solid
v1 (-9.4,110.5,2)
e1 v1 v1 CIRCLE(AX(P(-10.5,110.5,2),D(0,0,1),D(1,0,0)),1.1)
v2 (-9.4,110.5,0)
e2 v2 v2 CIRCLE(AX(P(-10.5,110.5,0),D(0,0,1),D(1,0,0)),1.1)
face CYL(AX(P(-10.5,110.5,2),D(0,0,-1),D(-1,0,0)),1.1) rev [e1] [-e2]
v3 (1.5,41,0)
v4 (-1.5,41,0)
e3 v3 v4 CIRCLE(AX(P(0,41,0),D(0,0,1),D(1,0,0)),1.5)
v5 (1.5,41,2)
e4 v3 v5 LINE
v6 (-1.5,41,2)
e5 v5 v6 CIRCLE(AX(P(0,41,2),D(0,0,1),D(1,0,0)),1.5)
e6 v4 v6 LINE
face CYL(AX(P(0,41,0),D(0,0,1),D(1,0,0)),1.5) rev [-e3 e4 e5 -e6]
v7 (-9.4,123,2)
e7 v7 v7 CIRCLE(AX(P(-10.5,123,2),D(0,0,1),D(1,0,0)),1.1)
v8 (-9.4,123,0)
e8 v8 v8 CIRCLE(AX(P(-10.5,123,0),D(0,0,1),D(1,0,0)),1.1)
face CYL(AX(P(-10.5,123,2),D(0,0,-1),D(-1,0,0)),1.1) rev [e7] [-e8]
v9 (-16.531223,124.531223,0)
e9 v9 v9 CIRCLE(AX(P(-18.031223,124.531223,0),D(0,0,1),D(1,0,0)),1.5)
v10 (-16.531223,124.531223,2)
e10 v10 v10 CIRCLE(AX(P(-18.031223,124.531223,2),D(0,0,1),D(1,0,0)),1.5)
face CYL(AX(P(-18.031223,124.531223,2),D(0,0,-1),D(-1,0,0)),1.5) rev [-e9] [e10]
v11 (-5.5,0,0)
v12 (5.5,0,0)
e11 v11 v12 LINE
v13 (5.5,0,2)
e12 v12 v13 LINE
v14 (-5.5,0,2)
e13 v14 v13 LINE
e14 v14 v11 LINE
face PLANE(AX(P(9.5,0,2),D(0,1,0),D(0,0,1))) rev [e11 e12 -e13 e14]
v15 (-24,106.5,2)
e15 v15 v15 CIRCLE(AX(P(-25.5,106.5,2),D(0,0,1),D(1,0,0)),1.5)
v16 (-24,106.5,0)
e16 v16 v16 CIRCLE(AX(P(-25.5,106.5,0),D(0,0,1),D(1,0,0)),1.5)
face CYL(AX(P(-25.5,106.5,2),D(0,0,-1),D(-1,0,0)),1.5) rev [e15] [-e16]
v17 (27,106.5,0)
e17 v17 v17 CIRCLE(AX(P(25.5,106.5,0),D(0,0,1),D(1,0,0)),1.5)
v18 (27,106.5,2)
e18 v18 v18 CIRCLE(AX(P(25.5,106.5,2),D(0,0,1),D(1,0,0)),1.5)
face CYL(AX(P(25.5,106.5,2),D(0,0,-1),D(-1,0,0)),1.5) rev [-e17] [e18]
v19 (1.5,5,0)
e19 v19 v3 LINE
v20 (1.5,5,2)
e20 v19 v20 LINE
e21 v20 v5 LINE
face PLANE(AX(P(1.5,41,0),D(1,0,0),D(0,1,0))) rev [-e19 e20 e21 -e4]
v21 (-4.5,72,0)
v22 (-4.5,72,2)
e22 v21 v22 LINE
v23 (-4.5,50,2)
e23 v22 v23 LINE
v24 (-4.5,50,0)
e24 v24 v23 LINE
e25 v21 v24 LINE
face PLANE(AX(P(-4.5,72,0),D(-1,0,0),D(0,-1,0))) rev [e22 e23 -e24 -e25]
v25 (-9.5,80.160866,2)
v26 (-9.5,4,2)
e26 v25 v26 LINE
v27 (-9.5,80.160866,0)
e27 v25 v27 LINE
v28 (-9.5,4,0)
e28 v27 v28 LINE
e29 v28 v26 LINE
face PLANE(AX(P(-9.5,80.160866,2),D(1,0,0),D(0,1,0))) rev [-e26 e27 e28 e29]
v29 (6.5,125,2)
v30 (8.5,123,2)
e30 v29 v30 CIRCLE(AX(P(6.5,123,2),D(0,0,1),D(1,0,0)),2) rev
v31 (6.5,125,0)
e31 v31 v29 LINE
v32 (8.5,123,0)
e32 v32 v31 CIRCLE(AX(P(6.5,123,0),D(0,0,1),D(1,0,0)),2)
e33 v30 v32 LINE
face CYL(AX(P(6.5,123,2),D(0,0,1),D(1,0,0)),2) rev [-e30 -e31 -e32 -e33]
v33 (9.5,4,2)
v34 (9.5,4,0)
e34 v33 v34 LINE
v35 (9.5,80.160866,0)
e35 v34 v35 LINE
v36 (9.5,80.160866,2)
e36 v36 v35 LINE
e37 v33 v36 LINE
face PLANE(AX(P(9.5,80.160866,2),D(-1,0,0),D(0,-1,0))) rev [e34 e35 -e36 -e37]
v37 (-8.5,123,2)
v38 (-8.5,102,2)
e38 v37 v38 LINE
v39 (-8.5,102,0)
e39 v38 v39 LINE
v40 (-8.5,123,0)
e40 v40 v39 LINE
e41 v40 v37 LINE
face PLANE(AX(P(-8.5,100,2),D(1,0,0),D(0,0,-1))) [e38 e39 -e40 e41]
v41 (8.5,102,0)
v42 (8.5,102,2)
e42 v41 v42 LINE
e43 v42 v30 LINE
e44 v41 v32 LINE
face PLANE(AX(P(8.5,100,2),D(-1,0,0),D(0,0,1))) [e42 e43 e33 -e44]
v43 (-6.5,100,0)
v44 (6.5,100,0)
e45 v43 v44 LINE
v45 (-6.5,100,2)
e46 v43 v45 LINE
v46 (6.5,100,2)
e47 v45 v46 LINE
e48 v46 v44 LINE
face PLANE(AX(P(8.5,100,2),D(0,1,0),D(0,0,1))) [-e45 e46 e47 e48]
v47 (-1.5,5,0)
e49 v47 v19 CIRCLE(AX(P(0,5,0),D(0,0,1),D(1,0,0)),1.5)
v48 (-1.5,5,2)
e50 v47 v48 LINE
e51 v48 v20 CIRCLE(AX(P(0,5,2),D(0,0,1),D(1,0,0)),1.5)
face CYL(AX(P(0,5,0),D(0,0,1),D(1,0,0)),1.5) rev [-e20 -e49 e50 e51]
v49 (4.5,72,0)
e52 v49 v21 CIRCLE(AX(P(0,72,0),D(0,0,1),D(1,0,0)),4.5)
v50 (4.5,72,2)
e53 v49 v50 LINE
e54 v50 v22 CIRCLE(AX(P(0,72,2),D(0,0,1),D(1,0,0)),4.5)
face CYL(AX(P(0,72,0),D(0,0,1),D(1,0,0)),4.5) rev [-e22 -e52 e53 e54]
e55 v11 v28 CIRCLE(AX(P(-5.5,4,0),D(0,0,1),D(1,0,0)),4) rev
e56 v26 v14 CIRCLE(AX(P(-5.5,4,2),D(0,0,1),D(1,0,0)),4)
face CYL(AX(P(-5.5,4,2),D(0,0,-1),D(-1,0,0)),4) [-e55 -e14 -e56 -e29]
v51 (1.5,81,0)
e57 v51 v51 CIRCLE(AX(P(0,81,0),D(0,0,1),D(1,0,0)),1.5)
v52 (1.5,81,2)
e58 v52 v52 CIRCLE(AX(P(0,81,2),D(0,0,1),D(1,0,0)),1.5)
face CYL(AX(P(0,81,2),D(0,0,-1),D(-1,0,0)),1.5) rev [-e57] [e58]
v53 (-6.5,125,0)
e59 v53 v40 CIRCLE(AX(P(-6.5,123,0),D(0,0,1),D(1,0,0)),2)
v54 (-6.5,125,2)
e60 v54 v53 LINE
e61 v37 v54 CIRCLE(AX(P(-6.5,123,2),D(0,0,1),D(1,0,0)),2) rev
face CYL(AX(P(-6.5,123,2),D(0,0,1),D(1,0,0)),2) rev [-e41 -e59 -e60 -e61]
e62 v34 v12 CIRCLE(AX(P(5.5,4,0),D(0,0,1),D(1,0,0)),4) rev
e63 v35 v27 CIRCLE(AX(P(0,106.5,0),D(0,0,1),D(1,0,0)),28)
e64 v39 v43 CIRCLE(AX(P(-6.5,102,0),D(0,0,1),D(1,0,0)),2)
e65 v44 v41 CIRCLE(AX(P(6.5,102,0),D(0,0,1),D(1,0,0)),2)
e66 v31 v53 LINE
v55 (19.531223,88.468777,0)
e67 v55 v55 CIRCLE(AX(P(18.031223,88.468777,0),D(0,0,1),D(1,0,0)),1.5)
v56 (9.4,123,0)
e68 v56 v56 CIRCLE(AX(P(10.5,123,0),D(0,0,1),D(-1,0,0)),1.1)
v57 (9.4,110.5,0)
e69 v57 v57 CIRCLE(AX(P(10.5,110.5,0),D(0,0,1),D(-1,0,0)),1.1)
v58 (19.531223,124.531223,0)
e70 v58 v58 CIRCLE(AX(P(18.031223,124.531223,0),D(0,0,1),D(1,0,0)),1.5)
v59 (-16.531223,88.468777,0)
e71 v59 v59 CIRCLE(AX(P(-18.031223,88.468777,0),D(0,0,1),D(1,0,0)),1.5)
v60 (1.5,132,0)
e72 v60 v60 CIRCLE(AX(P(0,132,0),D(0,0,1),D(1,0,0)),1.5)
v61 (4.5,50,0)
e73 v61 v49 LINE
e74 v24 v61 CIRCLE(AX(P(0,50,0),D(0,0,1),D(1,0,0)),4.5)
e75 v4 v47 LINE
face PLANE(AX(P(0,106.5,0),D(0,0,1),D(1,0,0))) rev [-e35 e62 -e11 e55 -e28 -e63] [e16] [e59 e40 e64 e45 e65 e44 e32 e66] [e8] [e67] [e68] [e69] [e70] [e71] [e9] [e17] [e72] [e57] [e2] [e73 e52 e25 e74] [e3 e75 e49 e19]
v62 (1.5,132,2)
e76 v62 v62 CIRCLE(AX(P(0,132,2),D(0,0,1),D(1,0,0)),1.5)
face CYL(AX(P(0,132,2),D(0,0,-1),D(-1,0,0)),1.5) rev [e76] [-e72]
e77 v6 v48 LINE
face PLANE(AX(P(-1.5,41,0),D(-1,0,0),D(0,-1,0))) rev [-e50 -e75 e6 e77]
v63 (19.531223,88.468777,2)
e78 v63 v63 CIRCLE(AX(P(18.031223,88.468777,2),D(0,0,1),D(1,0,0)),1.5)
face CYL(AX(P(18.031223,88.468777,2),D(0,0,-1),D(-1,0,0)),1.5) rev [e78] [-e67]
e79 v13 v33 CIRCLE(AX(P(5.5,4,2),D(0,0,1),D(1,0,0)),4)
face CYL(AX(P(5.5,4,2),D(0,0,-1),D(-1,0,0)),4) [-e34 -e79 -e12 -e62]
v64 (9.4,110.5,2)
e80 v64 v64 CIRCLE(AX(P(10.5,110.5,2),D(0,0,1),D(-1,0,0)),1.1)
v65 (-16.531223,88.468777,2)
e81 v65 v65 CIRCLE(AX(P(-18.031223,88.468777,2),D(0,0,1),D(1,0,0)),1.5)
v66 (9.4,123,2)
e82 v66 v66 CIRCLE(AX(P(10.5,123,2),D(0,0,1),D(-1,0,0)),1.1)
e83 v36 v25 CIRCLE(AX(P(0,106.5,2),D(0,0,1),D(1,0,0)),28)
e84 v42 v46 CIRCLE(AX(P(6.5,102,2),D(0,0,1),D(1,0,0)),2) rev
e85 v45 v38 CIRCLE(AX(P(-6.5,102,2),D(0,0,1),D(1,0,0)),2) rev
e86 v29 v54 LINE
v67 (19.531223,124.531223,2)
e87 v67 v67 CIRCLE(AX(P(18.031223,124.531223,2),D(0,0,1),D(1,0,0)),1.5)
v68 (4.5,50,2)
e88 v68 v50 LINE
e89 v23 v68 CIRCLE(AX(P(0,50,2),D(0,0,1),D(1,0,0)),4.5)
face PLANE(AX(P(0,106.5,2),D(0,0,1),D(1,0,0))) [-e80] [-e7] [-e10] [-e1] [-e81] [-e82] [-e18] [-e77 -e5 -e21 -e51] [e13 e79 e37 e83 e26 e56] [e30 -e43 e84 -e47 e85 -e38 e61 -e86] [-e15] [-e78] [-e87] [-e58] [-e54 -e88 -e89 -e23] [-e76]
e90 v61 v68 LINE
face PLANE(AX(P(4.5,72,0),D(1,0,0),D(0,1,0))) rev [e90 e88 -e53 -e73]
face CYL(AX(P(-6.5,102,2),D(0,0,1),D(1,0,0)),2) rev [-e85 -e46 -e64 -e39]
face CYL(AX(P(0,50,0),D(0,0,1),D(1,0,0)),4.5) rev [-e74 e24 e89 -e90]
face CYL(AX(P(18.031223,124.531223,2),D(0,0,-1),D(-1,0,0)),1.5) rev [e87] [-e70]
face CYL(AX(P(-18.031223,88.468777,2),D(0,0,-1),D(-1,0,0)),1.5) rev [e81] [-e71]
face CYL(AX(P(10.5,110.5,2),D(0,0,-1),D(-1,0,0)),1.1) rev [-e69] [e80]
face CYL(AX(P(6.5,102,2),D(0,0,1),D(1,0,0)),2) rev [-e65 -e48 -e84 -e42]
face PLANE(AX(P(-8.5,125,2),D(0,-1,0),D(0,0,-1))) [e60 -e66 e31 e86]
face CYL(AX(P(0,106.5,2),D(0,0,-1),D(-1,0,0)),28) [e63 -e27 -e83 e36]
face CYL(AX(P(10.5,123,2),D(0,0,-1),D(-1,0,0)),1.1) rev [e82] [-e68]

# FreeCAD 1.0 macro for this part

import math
import FreeCAD as App
import Part
import Sketcher
Q = App.Units.Quantity


def edges_at(feature, points):
    """Names of the edges that pass closest to the given points."""
    edges = feature.Shape.Edges
    near = lambda p: min(range(len(edges)), key=lambda i: edges[i].distToShape(Part.Vertex(*p))[0])
    return sorted({f"Edge{near(p) + 1}" for p in points})


def add_polygon(sketch, points):
    """Adds a closed chain of lines whose ends are joined by coincident constraints."""
    first, n = sketch.GeometryCount, len(points)
    for a, b in zip(points, points[1:] + points[:1]):
        sketch.addGeometry(Part.LineSegment(App.Vector(*a, 0), App.Vector(*b, 0)), False)
    for i in range(n):
        sketch.addConstraint(Sketcher.Constraint("Coincident", first + i, 2, first + (i + 1) % n, 1))

doc = App.newDocument("Part")
body = doc.addObject("PartDesign::Body", "Body")

# Sketch on XY plane
sketch1 = body.newObject("Sketcher::SketchObject", "Sketch")
sketch1.AttachmentSupport = (doc.getObject("XY_Plane"), [""])
sketch1.MapMode = "FlatFace"
sketch1.addGeometry(Part.LineSegment(App.Vector(-9.5, 0, 0), App.Vector(9.5, 0, 0)), False)  # 0
sketch1.addGeometry(Part.LineSegment(App.Vector(9.5, 0, 0), App.Vector(9.5, 80.160866, 0)), False)  # 1
sketch1.addGeometry(Part.ArcOfCircle(Part.Circle(App.Vector(0, 106.5, 0), App.Vector(0, 0, 1), 28), math.radians(-70.166638), math.radians(250.166638)), False)  # 2
sketch1.addGeometry(Part.LineSegment(App.Vector(-9.5, 80.160866, 0), App.Vector(-9.5, 0, 0)), False)  # 3
sketch1.addGeometry(Part.Circle(App.Vector(18.031223, 88.468777, 0), App.Vector(0, 0, 1), 1.5), False)  # 4
sketch1.addGeometry(Part.Circle(App.Vector(0, 81, 0), App.Vector(0, 0, 1), 1.5), False)  # 5
sketch1.addGeometry(Part.Circle(App.Vector(-18.031223, 88.468777, 0), App.Vector(0, 0, 1), 1.5), False)  # 6
sketch1.addGeometry(Part.Circle(App.Vector(25.5, 106.5, 0), App.Vector(0, 0, 1), 1.5), False)  # 7
sketch1.addGeometry(Part.Circle(App.Vector(10.5, 110.5, 0), App.Vector(0, 0, 1), 1.1), False)  # 8
sketch1.addGeometry(Part.Circle(App.Vector(18.031223, 124.531223, 0), App.Vector(0, 0, 1), 1.5), False)  # 9
sketch1.addGeometry(Part.Circle(App.Vector(10.5, 123, 0), App.Vector(0, 0, 1), 1.1), False)  # 10
add_polygon(sketch1, [(-8.5, 100), (-8.5, 125), (8.5, 125), (8.5, 100)])  # lines 11-14
sketch1.addGeometry(Part.Circle(App.Vector(-10.5, 110.5, 0), App.Vector(0, 0, 1), 1.1), False)  # 15
sketch1.addGeometry(Part.Circle(App.Vector(-25.5, 106.5, 0), App.Vector(0, 0, 1), 1.5), False)  # 16
sketch1.addGeometry(Part.Circle(App.Vector(-10.5, 123, 0), App.Vector(0, 0, 1), 1.1), False)  # 17
sketch1.addGeometry(Part.Circle(App.Vector(0, 132, 0), App.Vector(0, 0, 1), 1.5), False)  # 18
sketch1.addGeometry(Part.Circle(App.Vector(-18.031223, 124.531223, 0), App.Vector(0, 0, 1), 1.5), False)  # 19
sketch1.addConstraint(Sketcher.Constraint("Coincident", 0, 2, 1, 1))
sketch1.addConstraint(Sketcher.Constraint("Coincident", 1, 2, 2, 1))
sketch1.addConstraint(Sketcher.Constraint("Coincident", 2, 2, 3, 1))
sketch1.addConstraint(Sketcher.Constraint("Coincident", 3, 2, 0, 1))
sketch1.addConstraint(Sketcher.Constraint("Horizontal", 0))
sketch1.addConstraint(Sketcher.Constraint("Vertical", 1))
sketch1.addConstraint(Sketcher.Constraint("Vertical", 3))
sketch1.addConstraint(Sketcher.Constraint("Vertical", 11))
sketch1.addConstraint(Sketcher.Constraint("Horizontal", 12))
sketch1.addConstraint(Sketcher.Constraint("Vertical", 13))
sketch1.addConstraint(Sketcher.Constraint("Horizontal", 14))
sketch1.addConstraint(Sketcher.Constraint("Equal", 4, 5))
sketch1.addConstraint(Sketcher.Constraint("Equal", 5, 6))
sketch1.addConstraint(Sketcher.Constraint("Equal", 6, 7))
sketch1.addConstraint(Sketcher.Constraint("Equal", 7, 9))
sketch1.addConstraint(Sketcher.Constraint("Equal", 8, 10))
sketch1.addConstraint(Sketcher.Constraint("Equal", 10, 15))
sketch1.addConstraint(Sketcher.Constraint("Equal", 9, 16))
sketch1.addConstraint(Sketcher.Constraint("Equal", 15, 17))
sketch1.addConstraint(Sketcher.Constraint("Equal", 16, 18))
sketch1.addConstraint(Sketcher.Constraint("Equal", 18, 19))
sketch1.addConstraint(Sketcher.Constraint("Symmetric", 0, 2, 3, 2, -1, 1))
sketch1.addConstraint(Sketcher.Constraint("Symmetric", 4, 3, 6, 3, -2))
sketch1.addConstraint(Sketcher.Constraint("Symmetric", 8, 3, 15, 3, -2))
sketch1.addConstraint(Sketcher.Constraint("Symmetric", 7, 3, 16, 3, -2))
sketch1.addConstraint(Sketcher.Constraint("Symmetric", 10, 3, 17, 3, -2))
sketch1.addConstraint(Sketcher.Constraint("Symmetric", 9, 3, 19, 3, -2))
sketch1.addConstraint(Sketcher.Constraint("PointOnObject", 2, 3, -2))
sketch1.addConstraint(Sketcher.Constraint("PointOnObject", 5, 3, -2))
sketch1.addConstraint(Sketcher.Constraint("PointOnObject", 18, 3, -2))
sketch1.addConstraint(Sketcher.Constraint("Horizontal", 2, 3, 7, 3))
sketch1.addConstraint(Sketcher.Constraint("Vertical", 4, 3, 9, 3))
sketch1.addConstraint(Sketcher.Constraint("Vertical", 8, 3, 10, 3))
sketch1.addConstraint(Sketcher.Constraint("Diameter", 4, Q("3 mm")))
sketch1.addConstraint(Sketcher.Constraint("Radius", 2, Q("28 mm")))
sketch1.addConstraint(Sketcher.Constraint("Diameter", 8, Q("2.2 mm")))
sketch1.addConstraint(Sketcher.Constraint("DistanceX", 0, 1, 0, 2, Q("19 mm")))
sketch1.addConstraint(Sketcher.Constraint("DistanceX", 12, 1, 12, 2, Q("17 mm")))
sketch1.addConstraint(Sketcher.Constraint("DistanceY", 11, 1, 11, 2, Q("25 mm")))
sketch1.addConstraint(Sketcher.Constraint("DistanceY", -1, 1, 5, 3, Q("81 mm")))
sketch1.addConstraint(Sketcher.Constraint("DistanceY", -1, 1, 10, 3, Q("123 mm")))
sketch1.addConstraint(Sketcher.Constraint("DistanceY", -1, 1, 18, 3, Q("132 mm")))
sketch1.addConstraint(Sketcher.Constraint("DistanceY", -1, 1, 11, 2, Q("125 mm")))
sketch1.addConstraint(Sketcher.Constraint("DistanceY", 2, 3, 8, 3, Q("4 mm")))
sketch1.addConstraint(Sketcher.Constraint("DistanceX", 8, 3, 7, 3, Q("15 mm")))
sketch1.addConstraint(Sketcher.Constraint("DistanceX", 15, 3, 8, 3, Q("21 mm")))
sketch1.addConstraint(Sketcher.Constraint("DistanceX", 17, 3, 11, 2, Q("2 mm")))
sketch1.addConstraint(Sketcher.Constraint("DistanceY", -1, 1, 2, 3, Q("106.5 mm")))
sketch1.addConstraint(Sketcher.Constraint("DistanceY", 1, 2, 4, 3, Q("8.307911 mm")))
sketch1.addConstraint(Sketcher.Constraint("DistanceX", -1, 1, 4, 3, Q("18.031223 mm")))
sketch1.addConstraint(Sketcher.Constraint("DistanceY", -1, 1, 9, 3, Q("124.531223 mm")))
pad1 = body.newObject("PartDesign::Pad", "Pad")
pad1.Profile = sketch1
pad1.Length = 2
doc.recompute()

fillet = body.newObject("PartDesign::Fillet", "Fillet")
fillet.Base = (pad1, edges_at(pad1, [
    (-8.5, 125, 1),
    (-8.5, 100, 1),
    (8.5, 100, 1),
    (8.5, 125, 1),
]))
fillet.Radius = 2

# Sketch on XY plane
sketch2 = body.newObject("Sketcher::SketchObject", "Sketch001")
sketch2.AttachmentSupport = (doc.getObject("XY_Plane"), [""])
sketch2.MapMode = "FlatFace"
sketch2.AttachmentOffset = App.Placement(App.Vector(0, 0, 2), App.Rotation())
sketch2.addGeometry(Part.LineSegment(App.Vector(4.5, 50, 0), App.Vector(4.5, 72, 0)), False)
sketch2.addGeometry(Part.ArcOfCircle(Part.Circle(App.Vector(0, 72, 0), App.Vector(0, 0, 1), 4.5), math.radians(0), math.radians(180)), False)
sketch2.addGeometry(Part.LineSegment(App.Vector(-4.5, 72, 0), App.Vector(-4.5, 50, 0)), False)
sketch2.addGeometry(Part.ArcOfCircle(Part.Circle(App.Vector(0, 50, 0), App.Vector(0, 0, 1), 4.5), math.radians(180), math.radians(360)), False)
sketch2.addGeometry(Part.LineSegment(App.Vector(1.5, 5, 0), App.Vector(1.5, 41, 0)), False)
sketch2.addGeometry(Part.ArcOfCircle(Part.Circle(App.Vector(0, 41, 0), App.Vector(0, 0, 1), 1.5), math.radians(0), math.radians(180)), False)
sketch2.addGeometry(Part.LineSegment(App.Vector(-1.5, 41, 0), App.Vector(-1.5, 5, 0)), False)
sketch2.addGeometry(Part.ArcOfCircle(Part.Circle(App.Vector(0, 5, 0), App.Vector(0, 0, 1), 1.5), math.radians(180), math.radians(360)), False)
sketch2.addConstraint(Sketcher.Constraint("Tangent", 0, 2, 1, 1))
sketch2.addConstraint(Sketcher.Constraint("Tangent", 1, 2, 2, 1))
sketch2.addConstraint(Sketcher.Constraint("Tangent", 2, 2, 3, 1))
sketch2.addConstraint(Sketcher.Constraint("Tangent", 3, 2, 0, 1))
sketch2.addConstraint(Sketcher.Constraint("Tangent", 4, 2, 5, 1))
sketch2.addConstraint(Sketcher.Constraint("Tangent", 5, 2, 6, 1))
sketch2.addConstraint(Sketcher.Constraint("Tangent", 6, 2, 7, 1))
sketch2.addConstraint(Sketcher.Constraint("Tangent", 7, 2, 4, 1))
sketch2.addConstraint(Sketcher.Constraint("Vertical", 0))
sketch2.addConstraint(Sketcher.Constraint("Vertical", 2))
sketch2.addConstraint(Sketcher.Constraint("Vertical", 4))
sketch2.addConstraint(Sketcher.Constraint("Vertical", 6))
sketch2.addConstraint(Sketcher.Constraint("PointOnObject", 1, 3, -2))
sketch2.addConstraint(Sketcher.Constraint("PointOnObject", 5, 3, -2))
sketch2.addConstraint(Sketcher.Constraint("Radius", 1, Q("4.5 mm")))
sketch2.addConstraint(Sketcher.Constraint("Radius", 5, Q("1.5 mm")))
sketch2.addConstraint(Sketcher.Constraint("DistanceY", 0, 1, 0, 2, Q("22 mm")))
sketch2.addConstraint(Sketcher.Constraint("DistanceY", 4, 1, 4, 2, Q("36 mm")))
sketch2.addConstraint(Sketcher.Constraint("DistanceY", -1, 1, 1, 3, Q("72 mm")))
sketch2.addConstraint(Sketcher.Constraint("DistanceY", -1, 1, 5, 3, Q("41 mm")))
pocket1 = body.newObject("PartDesign::Pocket", "Pocket")
pocket1.Profile = sketch2
pocket1.Length = 2
doc.recompute()

fillet2 = body.newObject("PartDesign::Fillet", "Fillet001")
fillet2.Base = (pocket1, edges_at(pocket1, [(9.5, 0, 1), (-9.5, 0, 1)]))
fillet2.Radius = 4

doc.recompute()
